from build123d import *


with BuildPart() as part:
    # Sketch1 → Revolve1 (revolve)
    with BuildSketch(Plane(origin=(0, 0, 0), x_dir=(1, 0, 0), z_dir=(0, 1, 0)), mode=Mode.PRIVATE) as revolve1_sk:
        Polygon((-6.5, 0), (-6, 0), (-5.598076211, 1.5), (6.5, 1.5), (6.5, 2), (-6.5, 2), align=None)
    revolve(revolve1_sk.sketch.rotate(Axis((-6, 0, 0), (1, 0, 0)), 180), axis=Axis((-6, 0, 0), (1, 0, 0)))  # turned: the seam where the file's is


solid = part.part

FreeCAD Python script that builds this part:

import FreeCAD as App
import Part
import Sketcher
Q = App.Units.Quantity


def add_polygon(sketch, points):
    """Adds a closed chain of lines whose ends are joined by coincident constraints."""
    first, n = sketch.GeometryCount, len(points)
    for a, b in zip(points, points[1:] + points[:1]):
        sketch.addGeometry(Part.LineSegment(App.Vector(*a, 0), App.Vector(*b, 0)), False)
    for i in range(n):
        sketch.addConstraint(Sketcher.Constraint("Coincident", first + i, 2, first + (i + 1) % n, 1))

doc = App.newDocument("Part")
body = doc.addObject("PartDesign::Body", "Body")

sketch1 = body.newObject("Sketcher::SketchObject", "Sketch")
sketch1.AttachmentSupport = (doc.getObject("XZ_Plane"), [""])
sketch1.MapMode = "FlatFace"
add_polygon(sketch1, [(-6.5, 0), (-6, 0), (-5.598076, -1.5), (6.5, -1.5), (6.5, -2), (-6.5, -2)])
sketch1.addConstraint(Sketcher.Constraint("Horizontal", 0))
sketch1.addConstraint(Sketcher.Constraint("Horizontal", 2))
sketch1.addConstraint(Sketcher.Constraint("Vertical", 3))
sketch1.addConstraint(Sketcher.Constraint("Horizontal", 4))
sketch1.addConstraint(Sketcher.Constraint("Vertical", 5))
sketch1.addConstraint(Sketcher.Constraint("PointOnObject", 0, 2, -1))
sketch1.addConstraint(Sketcher.Constraint("Equal", 0, 3))
sketch1.addConstraint(Sketcher.Constraint("DistanceX", 4, 2, 4, 1, Q("13 mm")))
sketch1.addConstraint(Sketcher.Constraint("DistanceY", 5, 1, 5, 2, Q("2 mm")))
sketch1.addConstraint(Sketcher.Constraint("Angle", 1, Q("-75 deg")))
sketch1.addConstraint(Sketcher.Constraint("DistanceX", 0, 1, 0, 2, Q("0.5 mm")))
sketch1.addConstraint(Sketcher.Constraint("DistanceX", 0, 2, -1, 1, Q("6 mm")))
revolution = body.newObject("PartDesign::Revolution", "Revolution")
revolution.Profile = sketch1
revolution.ReferenceAxis = (sketch1, ["H_Axis"])
revolution.Angle = 360

doc.recompute()
